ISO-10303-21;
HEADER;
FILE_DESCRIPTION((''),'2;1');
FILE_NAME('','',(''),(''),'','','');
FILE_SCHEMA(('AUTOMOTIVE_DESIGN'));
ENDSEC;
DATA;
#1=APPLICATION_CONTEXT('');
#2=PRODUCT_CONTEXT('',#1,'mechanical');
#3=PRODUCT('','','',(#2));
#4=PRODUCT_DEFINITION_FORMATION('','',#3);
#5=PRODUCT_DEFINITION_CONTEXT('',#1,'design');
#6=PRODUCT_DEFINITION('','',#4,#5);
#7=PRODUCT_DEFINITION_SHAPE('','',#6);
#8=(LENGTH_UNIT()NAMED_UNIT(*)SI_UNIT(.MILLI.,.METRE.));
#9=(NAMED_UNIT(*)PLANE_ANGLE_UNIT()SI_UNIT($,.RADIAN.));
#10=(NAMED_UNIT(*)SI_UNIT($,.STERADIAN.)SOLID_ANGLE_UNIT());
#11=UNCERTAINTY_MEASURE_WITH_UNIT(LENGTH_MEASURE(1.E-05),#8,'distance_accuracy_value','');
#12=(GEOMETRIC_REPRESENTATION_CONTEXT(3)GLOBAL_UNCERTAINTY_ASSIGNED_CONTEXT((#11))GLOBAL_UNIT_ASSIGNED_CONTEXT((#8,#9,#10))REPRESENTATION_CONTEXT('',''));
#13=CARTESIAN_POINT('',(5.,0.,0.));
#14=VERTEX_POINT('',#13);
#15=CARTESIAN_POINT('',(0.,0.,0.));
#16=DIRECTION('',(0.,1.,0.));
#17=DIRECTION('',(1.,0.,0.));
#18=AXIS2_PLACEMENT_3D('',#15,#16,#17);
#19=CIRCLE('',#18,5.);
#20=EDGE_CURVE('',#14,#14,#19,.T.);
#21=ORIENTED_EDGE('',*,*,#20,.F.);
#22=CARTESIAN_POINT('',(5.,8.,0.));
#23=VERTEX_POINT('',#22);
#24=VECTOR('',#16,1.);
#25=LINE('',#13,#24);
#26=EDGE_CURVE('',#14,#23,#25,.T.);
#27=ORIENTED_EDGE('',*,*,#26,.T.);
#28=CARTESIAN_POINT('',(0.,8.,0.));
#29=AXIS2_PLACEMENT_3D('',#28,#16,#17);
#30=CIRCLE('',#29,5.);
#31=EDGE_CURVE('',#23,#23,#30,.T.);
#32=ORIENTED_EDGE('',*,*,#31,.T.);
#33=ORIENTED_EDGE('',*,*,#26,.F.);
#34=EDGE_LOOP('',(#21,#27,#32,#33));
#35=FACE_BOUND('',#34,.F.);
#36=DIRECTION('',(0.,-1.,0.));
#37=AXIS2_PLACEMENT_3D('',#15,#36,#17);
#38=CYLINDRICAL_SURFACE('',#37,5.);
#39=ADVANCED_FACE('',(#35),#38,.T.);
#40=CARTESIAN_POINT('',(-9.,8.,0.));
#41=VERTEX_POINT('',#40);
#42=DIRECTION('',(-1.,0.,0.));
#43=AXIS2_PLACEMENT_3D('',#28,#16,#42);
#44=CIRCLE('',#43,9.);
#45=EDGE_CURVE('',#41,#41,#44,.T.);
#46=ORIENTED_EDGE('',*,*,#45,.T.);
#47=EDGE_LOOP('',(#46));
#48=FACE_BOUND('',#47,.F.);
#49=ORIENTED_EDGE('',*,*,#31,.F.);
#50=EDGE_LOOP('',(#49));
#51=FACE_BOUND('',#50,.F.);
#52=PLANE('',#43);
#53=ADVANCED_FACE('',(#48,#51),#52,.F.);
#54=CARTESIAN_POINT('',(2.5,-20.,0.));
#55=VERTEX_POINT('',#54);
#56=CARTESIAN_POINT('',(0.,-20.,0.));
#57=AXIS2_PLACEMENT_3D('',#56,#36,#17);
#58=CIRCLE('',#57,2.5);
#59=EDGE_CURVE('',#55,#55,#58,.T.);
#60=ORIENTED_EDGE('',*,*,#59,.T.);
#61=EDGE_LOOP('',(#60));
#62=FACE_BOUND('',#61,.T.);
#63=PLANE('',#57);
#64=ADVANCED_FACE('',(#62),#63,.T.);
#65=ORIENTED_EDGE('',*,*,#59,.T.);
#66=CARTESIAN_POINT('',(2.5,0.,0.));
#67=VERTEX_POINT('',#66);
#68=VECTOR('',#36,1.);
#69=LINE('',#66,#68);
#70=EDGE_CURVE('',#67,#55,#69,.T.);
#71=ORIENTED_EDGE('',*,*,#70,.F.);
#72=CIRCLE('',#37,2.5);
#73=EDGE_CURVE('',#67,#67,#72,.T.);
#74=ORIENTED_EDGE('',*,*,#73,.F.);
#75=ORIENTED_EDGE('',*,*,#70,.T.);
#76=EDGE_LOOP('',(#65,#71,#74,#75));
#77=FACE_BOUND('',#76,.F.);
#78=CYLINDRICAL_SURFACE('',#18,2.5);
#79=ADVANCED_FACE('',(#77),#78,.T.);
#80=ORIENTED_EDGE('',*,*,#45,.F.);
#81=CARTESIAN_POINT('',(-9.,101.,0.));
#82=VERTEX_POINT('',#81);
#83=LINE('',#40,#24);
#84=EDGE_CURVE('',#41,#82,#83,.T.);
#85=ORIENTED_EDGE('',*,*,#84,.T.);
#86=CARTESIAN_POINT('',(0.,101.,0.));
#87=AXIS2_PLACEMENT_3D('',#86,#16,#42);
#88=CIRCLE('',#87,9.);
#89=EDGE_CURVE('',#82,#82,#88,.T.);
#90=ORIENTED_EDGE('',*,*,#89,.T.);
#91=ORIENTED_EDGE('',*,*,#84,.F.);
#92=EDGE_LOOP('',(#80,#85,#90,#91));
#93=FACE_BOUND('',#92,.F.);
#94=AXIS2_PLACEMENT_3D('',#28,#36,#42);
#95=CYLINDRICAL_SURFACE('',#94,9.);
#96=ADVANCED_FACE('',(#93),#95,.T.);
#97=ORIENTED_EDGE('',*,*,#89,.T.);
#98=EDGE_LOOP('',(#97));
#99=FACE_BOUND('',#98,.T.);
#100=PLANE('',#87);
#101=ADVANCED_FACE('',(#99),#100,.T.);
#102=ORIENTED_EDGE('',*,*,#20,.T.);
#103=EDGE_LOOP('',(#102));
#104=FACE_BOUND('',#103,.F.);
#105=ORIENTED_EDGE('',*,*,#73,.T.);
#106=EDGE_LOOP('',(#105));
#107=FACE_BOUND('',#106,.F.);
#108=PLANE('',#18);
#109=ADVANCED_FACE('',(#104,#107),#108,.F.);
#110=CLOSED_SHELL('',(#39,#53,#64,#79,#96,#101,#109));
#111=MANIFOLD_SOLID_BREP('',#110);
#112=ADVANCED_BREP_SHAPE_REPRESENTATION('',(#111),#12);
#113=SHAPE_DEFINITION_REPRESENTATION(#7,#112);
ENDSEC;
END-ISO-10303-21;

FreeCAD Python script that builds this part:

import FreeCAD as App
import Part
import Sketcher
Q = App.Units.Quantity

doc = App.newDocument("Part")
params = doc.addObject("Spreadsheet::Sheet", "Params")
for row, (alias, value) in enumerate([
    ("sketch1_diameter", "10 mm"),
    ("pad1_length", "8 mm"),
    ("sketch2_diameter", "18 mm"),
    ("pad2_length", "93 mm"),
    ("sketch3_diameter", "5 mm"),
    ("pad3_length", "20 mm"),
], start=1):
    params.set(f"A{row}", alias)
    params.set(f"B{row}", "=" + value)
    params.setAlias(f"B{row}", alias)

body = doc.addObject("PartDesign::Body", "Body")

# Sketch on XZ plane
sketch1 = body.newObject("Sketcher::SketchObject", "Sketch")
sketch1.AttachmentSupport = (doc.getObject("XZ_Plane"), [""])
sketch1.MapMode = "FlatFace"
sketch1.addGeometry(Part.Circle(App.Vector(0, 0, 0), App.Vector(0, 0, 1), 5), False)
sketch1.addConstraint(Sketcher.Constraint("Coincident", 0, 3, -1, 1))
sketch1.addConstraint(Sketcher.Constraint("Diameter", 0, Q("10 mm")))
sketch1.setExpression("Constraints[1]", "Params.sketch1_diameter")
pad1 = body.newObject("PartDesign::Pad", "Pad")
pad1.Profile = sketch1
pad1.setExpression("Length", "Params.pad1_length")
pad1.Reversed = True

# Sketch on XZ plane
sketch2 = body.newObject("Sketcher::SketchObject", "Sketch001")
sketch2.AttachmentSupport = (doc.getObject("XZ_Plane"), [""])
sketch2.MapMode = "FlatFace"
sketch2.AttachmentOffset = App.Placement(App.Vector(0, 0, -8), App.Rotation())
sketch2.addGeometry(Part.Circle(App.Vector(0, 0, 0), App.Vector(0, 0, 1), 9), False)
sketch2.addConstraint(Sketcher.Constraint("Coincident", 0, 3, -1, 1))
sketch2.addConstraint(Sketcher.Constraint("Diameter", 0, Q("18 mm")))
sketch2.setExpression("Constraints[1]", "Params.sketch2_diameter")
pad2 = body.newObject("PartDesign::Pad", "Pad001")
pad2.Profile = sketch2
pad2.setExpression("Length", "Params.pad2_length")
pad2.Reversed = True

# Sketch on XZ plane
sketch3 = body.newObject("Sketcher::SketchObject", "Sketch002")
sketch3.AttachmentSupport = (doc.getObject("XZ_Plane"), [""])
sketch3.MapMode = "FlatFace"
sketch3.addGeometry(Part.Circle(App.Vector(0, 0, 0), App.Vector(0, 0, 1), 2.5), False)
sketch3.addConstraint(Sketcher.Constraint("Coincident", 0, 3, -1, 1))
sketch3.addConstraint(Sketcher.Constraint("Diameter", 0, Q("5 mm")))
sketch3.setExpression("Constraints[1]", "Params.sketch3_diameter")
pad3 = body.newObject("PartDesign::Pad", "Pad002")
pad3.Profile = sketch3
pad3.setExpression("Length", "Params.pad3_length")

doc.recompute()
